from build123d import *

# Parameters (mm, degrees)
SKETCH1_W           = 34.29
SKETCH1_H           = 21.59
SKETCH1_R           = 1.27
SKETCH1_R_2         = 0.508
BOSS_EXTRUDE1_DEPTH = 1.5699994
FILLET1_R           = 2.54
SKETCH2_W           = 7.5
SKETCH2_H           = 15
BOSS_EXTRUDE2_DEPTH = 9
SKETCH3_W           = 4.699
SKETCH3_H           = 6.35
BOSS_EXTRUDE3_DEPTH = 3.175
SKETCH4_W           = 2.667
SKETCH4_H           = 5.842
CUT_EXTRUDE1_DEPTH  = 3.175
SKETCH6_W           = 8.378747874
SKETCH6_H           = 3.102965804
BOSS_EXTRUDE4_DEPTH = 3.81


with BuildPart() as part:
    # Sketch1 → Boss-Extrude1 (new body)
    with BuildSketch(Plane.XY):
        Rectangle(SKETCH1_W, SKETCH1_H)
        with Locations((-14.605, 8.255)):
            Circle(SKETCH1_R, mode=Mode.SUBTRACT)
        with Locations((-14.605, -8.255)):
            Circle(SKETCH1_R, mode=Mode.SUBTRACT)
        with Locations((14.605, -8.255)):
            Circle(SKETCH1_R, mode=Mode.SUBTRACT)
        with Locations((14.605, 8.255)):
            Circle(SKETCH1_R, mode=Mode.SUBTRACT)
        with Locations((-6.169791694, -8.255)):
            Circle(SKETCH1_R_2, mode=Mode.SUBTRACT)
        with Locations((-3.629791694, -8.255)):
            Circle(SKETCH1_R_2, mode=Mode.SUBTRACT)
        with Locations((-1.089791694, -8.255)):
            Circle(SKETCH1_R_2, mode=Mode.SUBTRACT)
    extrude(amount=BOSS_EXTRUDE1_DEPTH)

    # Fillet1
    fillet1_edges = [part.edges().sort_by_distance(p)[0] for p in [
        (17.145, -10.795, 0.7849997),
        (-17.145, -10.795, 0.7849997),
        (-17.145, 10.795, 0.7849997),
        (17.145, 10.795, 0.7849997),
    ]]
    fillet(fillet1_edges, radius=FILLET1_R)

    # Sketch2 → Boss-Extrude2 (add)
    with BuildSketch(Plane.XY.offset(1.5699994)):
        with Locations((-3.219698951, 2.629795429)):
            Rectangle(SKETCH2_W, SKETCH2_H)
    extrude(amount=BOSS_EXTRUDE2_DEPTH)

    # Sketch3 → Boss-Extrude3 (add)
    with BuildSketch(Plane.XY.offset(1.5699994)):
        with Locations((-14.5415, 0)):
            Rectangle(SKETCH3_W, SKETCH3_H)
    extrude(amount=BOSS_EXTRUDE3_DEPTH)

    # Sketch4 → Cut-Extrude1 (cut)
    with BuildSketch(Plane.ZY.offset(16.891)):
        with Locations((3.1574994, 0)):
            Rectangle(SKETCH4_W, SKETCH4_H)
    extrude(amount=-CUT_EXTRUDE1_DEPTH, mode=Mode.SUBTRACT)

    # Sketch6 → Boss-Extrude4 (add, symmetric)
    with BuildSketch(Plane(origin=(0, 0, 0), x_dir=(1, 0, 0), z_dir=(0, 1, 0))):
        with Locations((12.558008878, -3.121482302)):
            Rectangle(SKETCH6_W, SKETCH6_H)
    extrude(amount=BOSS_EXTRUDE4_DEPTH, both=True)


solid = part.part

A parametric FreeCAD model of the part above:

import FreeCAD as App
import Part
import Sketcher
Q = App.Units.Quantity


def edges_at(feature, points):
    """Names of the edges that pass closest to the given points."""
    edges = feature.Shape.Edges
    near = lambda p: min(range(len(edges)), key=lambda i: edges[i].distToShape(Part.Vertex(*p))[0])
    return sorted({f"Edge{near(p) + 1}" for p in points})

doc = App.newDocument("Part")
body = doc.addObject("PartDesign::Body", "Body")

sketch1 = body.newObject("Sketcher::SketchObject", "Sketch")
sketch1.AttachmentSupport = (doc.getObject("XY_Plane"), [""])
sketch1.MapMode = "FlatFace"
sketch1.addGeometry(Part.LineSegment(App.Vector(-17.145, 10.795, 0), App.Vector(-17.145, -10.795, 0)), False)
sketch1.addGeometry(Part.LineSegment(App.Vector(-17.145, -10.795, 0), App.Vector(17.145, -10.795, 0)), False)
sketch1.addGeometry(Part.LineSegment(App.Vector(17.145, -10.795, 0), App.Vector(17.145, 10.795, 0)), False)
sketch1.addGeometry(Part.LineSegment(App.Vector(17.145, 10.795, 0), App.Vector(-17.145, 10.795, 0)), False)
sketch1.addGeometry(Part.Circle(App.Vector(-14.605, -8.255, 0), App.Vector(0, 0, 1), 1.27), False)
sketch1.addGeometry(Part.Circle(App.Vector(-6.169792, -8.255, 0), App.Vector(0, 0, 1), 0.508), False)
sketch1.addGeometry(Part.Circle(App.Vector(-3.629792, -8.255, 0), App.Vector(0, 0, 1), 0.508), False)
sketch1.addGeometry(Part.Circle(App.Vector(-1.089792, -8.255, 0), App.Vector(0, 0, 1), 0.508), False)
sketch1.addGeometry(Part.Circle(App.Vector(14.605, -8.255, 0), App.Vector(0, 0, 1), 1.27), False)
sketch1.addGeometry(Part.Circle(App.Vector(-14.605, 8.255, 0), App.Vector(0, 0, 1), 1.27), False)
sketch1.addGeometry(Part.Circle(App.Vector(14.605, 8.255, 0), App.Vector(0, 0, 1), 1.27), False)
sketch1.addConstraint(Sketcher.Constraint("Coincident", 0, 2, 1, 1))
sketch1.addConstraint(Sketcher.Constraint("Coincident", 1, 2, 2, 1))
sketch1.addConstraint(Sketcher.Constraint("Coincident", 2, 2, 3, 1))
sketch1.addConstraint(Sketcher.Constraint("Coincident", 3, 2, 0, 1))
sketch1.addConstraint(Sketcher.Constraint("Vertical", 0))
sketch1.addConstraint(Sketcher.Constraint("Horizontal", 1))
sketch1.addConstraint(Sketcher.Constraint("Vertical", 2))
sketch1.addConstraint(Sketcher.Constraint("Horizontal", 3))
sketch1.addConstraint(Sketcher.Constraint("Equal", 5, 6))
sketch1.addConstraint(Sketcher.Constraint("Equal", 6, 7))
sketch1.addConstraint(Sketcher.Constraint("Equal", 4, 8))
sketch1.addConstraint(Sketcher.Constraint("Equal", 8, 9))
sketch1.addConstraint(Sketcher.Constraint("Equal", 9, 10))
sketch1.addConstraint(Sketcher.Constraint("Symmetric", 8, 3, 9, 3, -1, 1))
sketch1.addConstraint(Sketcher.Constraint("Symmetric", 4, 3, 10, 3, -1, 1))
sketch1.addConstraint(Sketcher.Constraint("Symmetric", 0, 2, 2, 2, -1, 1))
sketch1.addConstraint(Sketcher.Constraint("Symmetric", 4, 3, 8, 3, -2))
sketch1.addConstraint(Sketcher.Constraint("Horizontal", 4, 3, 5, 3))
sketch1.addConstraint(Sketcher.Constraint("Horizontal", 5, 3, 6, 3))
sketch1.addConstraint(Sketcher.Constraint("Horizontal", 6, 3, 7, 3))
sketch1.addConstraint(Sketcher.Constraint("Diameter", 4, Q("0.1 in")))
sketch1.addConstraint(Sketcher.Constraint("Diameter", 5, Q("0.04 in")))
sketch1.addConstraint(Sketcher.Constraint("DistanceX", 1, 1, 1, 2, Q("1.35 in")))
sketch1.addConstraint(Sketcher.Constraint("DistanceY", 0, 2, 0, 1, Q("0.85 in")))
sketch1.addConstraint(Sketcher.Constraint("DistanceX", 5, 3, 6, 3, Q("0.1 in")))
sketch1.addConstraint(Sketcher.Constraint("DistanceX", 6, 3, 7, 3, Q("0.1 in")))
sketch1.addConstraint(Sketcher.Constraint("DistanceX", 0, 2, 4, 3, Q("0.1 in")))
sketch1.addConstraint(Sketcher.Constraint("DistanceY", 0, 2, 4, 3, Q("0.1 in")))
sketch1.addConstraint(Sketcher.Constraint("DistanceX", 5, 3, -1, 1, 6.169792))
pad1 = body.newObject("PartDesign::Pad", "Pad")
pad1.Profile = sketch1
pad1.Length = 1.569999
doc.recompute()

fillet = body.newObject("PartDesign::Fillet", "Fillet")
fillet.Base = (pad1, edges_at(pad1, [
    (17.145, -10.795, 0.785),
    (-17.145, -10.795, 0.785),
    (-17.145, 10.795, 0.785),
    (17.145, 10.795, 0.785),
]))
fillet.Radius = Q("0.1 in")

sketch2 = body.newObject("Sketcher::SketchObject", "Sketch001")
sketch2.AttachmentSupport = (doc.getObject("XY_Plane"), [""])
sketch2.MapMode = "FlatFace"
sketch2.AttachmentOffset = App.Placement(App.Vector(0, 0, 1.569999), App.Rotation())
sketch2.addGeometry(Part.LineSegment(App.Vector(-6.969699, 10.129795, 0), App.Vector(-6.969699, -4.870205, 0)), False)
sketch2.addGeometry(Part.LineSegment(App.Vector(-6.969699, -4.870205, 0), App.Vector(0.530301, -4.870205, 0)), False)
sketch2.addGeometry(Part.LineSegment(App.Vector(0.530301, -4.870205, 0), App.Vector(0.530301, 10.129795, 0)), False)
sketch2.addGeometry(Part.LineSegment(App.Vector(0.530301, 10.129795, 0), App.Vector(-6.969699, 10.129795, 0)), False)
sketch2.addConstraint(Sketcher.Constraint("Coincident", 0, 2, 1, 1))
sketch2.addConstraint(Sketcher.Constraint("Coincident", 1, 2, 2, 1))
sketch2.addConstraint(Sketcher.Constraint("Coincident", 2, 2, 3, 1))
sketch2.addConstraint(Sketcher.Constraint("Coincident", 3, 2, 0, 1))
sketch2.addConstraint(Sketcher.Constraint("Vertical", 0))
sketch2.addConstraint(Sketcher.Constraint("Horizontal", 1))
sketch2.addConstraint(Sketcher.Constraint("Vertical", 2))
sketch2.addConstraint(Sketcher.Constraint("Horizontal", 3))
sketch2.addConstraint(Sketcher.Constraint("DistanceX", 1, 1, 1, 2, 7.5))
sketch2.addConstraint(Sketcher.Constraint("DistanceY", 0, 2, 0, 1, 15.0))
sketch2.addConstraint(Sketcher.Constraint("DistanceX", 0, 2, -1, 1, 6.969699))
sketch2.addConstraint(Sketcher.Constraint("DistanceY", 0, 2, -1, 1, 4.870205))
pad2 = body.newObject("PartDesign::Pad", "Pad001")
pad2.Profile = sketch2
pad2.Length = 9

sketch3 = body.newObject("Sketcher::SketchObject", "Sketch002")
sketch3.AttachmentSupport = (doc.getObject("XY_Plane"), [""])
sketch3.MapMode = "FlatFace"
sketch3.AttachmentOffset = App.Placement(App.Vector(0, 0, 1.569999), App.Rotation())
sketch3.addGeometry(Part.LineSegment(App.Vector(-16.891, 3.175, 0), App.Vector(-16.891, -3.175, 0)), False)
sketch3.addGeometry(Part.LineSegment(App.Vector(-16.891, -3.175, 0), App.Vector(-12.192, -3.175, 0)), False)
sketch3.addGeometry(Part.LineSegment(App.Vector(-12.192, -3.175, 0), App.Vector(-12.192, 3.175, 0)), False)
sketch3.addGeometry(Part.LineSegment(App.Vector(-12.192, 3.175, 0), App.Vector(-16.891, 3.175, 0)), False)
sketch3.addConstraint(Sketcher.Constraint("Coincident", 0, 2, 1, 1))
sketch3.addConstraint(Sketcher.Constraint("Coincident", 1, 2, 2, 1))
sketch3.addConstraint(Sketcher.Constraint("Coincident", 2, 2, 3, 1))
sketch3.addConstraint(Sketcher.Constraint("Coincident", 3, 2, 0, 1))
sketch3.addConstraint(Sketcher.Constraint("Vertical", 0))
sketch3.addConstraint(Sketcher.Constraint("Horizontal", 1))
sketch3.addConstraint(Sketcher.Constraint("Vertical", 2))
sketch3.addConstraint(Sketcher.Constraint("Horizontal", 3))
sketch3.addConstraint(Sketcher.Constraint("DistanceY", 0, 2, 0, 1, Q("0.25 in")))
sketch3.addConstraint(Sketcher.Constraint("DistanceX", 1, 1, 1, 2, Q("0.185 in")))
sketch3.addConstraint(Sketcher.Constraint("DistanceX", 1, 2, -1, 1, Q("0.48 in")))
sketch3.addConstraint(Sketcher.Constraint("DistanceY", 0, 2, -1, 1, Q("0.125 in")))
pad3 = body.newObject("PartDesign::Pad", "Pad002")
pad3.Profile = sketch3
pad3.Length = Q("0.125 in")

sketch4 = body.newObject("Sketcher::SketchObject", "Sketch003")
sketch4.AttachmentSupport = (doc.getObject("YZ_Plane"), [""])
sketch4.MapMode = "FlatFace"
sketch4.AttachmentOffset = App.Placement(App.Vector(0, 0, -0.665 * 25.4), App.Rotation())
sketch4.addGeometry(Part.LineSegment(App.Vector(2.921, 1.823999, 0), App.Vector(-2.921, 1.823999, 0)), False)
sketch4.addGeometry(Part.LineSegment(App.Vector(-2.921, 1.823999, 0), App.Vector(-2.921, 4.490999, 0)), False)
sketch4.addGeometry(Part.LineSegment(App.Vector(-2.921, 4.490999, 0), App.Vector(2.921, 4.490999, 0)), False)
sketch4.addGeometry(Part.LineSegment(App.Vector(2.921, 4.490999, 0), App.Vector(2.921, 1.823999, 0)), False)
sketch4.addConstraint(Sketcher.Constraint("Coincident", 0, 2, 1, 1))
sketch4.addConstraint(Sketcher.Constraint("Coincident", 1, 2, 2, 1))
sketch4.addConstraint(Sketcher.Constraint("Coincident", 2, 2, 3, 1))
sketch4.addConstraint(Sketcher.Constraint("Coincident", 3, 2, 0, 1))
sketch4.addConstraint(Sketcher.Constraint("Horizontal", 0))
sketch4.addConstraint(Sketcher.Constraint("Vertical", 1))
sketch4.addConstraint(Sketcher.Constraint("Horizontal", 2))
sketch4.addConstraint(Sketcher.Constraint("Vertical", 3))
sketch4.addConstraint(Sketcher.Constraint("DistanceX", 0, 2, 0, 1, Q("0.23 in")))
sketch4.addConstraint(Sketcher.Constraint("DistanceY", 1, 1, 1, 2, Q("0.105 in")))
sketch4.addConstraint(Sketcher.Constraint("DistanceX", 0, 2, -1, 1, Q("0.115 in")))
sketch4.addConstraint(Sketcher.Constraint("DistanceY", -1, 1, 0, 2, 1.823999))
pocket1 = body.newObject("PartDesign::Pocket", "Pocket")
pocket1.Profile = sketch4
pocket1.Length = Q("0.125 in")
pocket1.Reversed = True

sketch5 = body.newObject("Sketcher::SketchObject", "Sketch004")
sketch5.AttachmentSupport = (doc.getObject("XZ_Plane"), [""])
sketch5.MapMode = "FlatFace"
sketch5.addGeometry(Part.LineSegment(App.Vector(8.368635, 1.569999, 0), App.Vector(8.368635, 4.672965, 0)), False)
sketch5.addGeometry(Part.LineSegment(App.Vector(8.368635, 4.672965, 0), App.Vector(16.747383, 4.672965, 0)), False)
sketch5.addGeometry(Part.LineSegment(App.Vector(16.747383, 4.672965, 0), App.Vector(16.747383, 1.569999, 0)), False)
sketch5.addGeometry(Part.LineSegment(App.Vector(16.747383, 1.569999, 0), App.Vector(8.368635, 1.569999, 0)), False)
sketch5.addConstraint(Sketcher.Constraint("Coincident", 0, 2, 1, 1))
sketch5.addConstraint(Sketcher.Constraint("Coincident", 1, 2, 2, 1))
sketch5.addConstraint(Sketcher.Constraint("Coincident", 2, 2, 3, 1))
sketch5.addConstraint(Sketcher.Constraint("Coincident", 3, 2, 0, 1))
sketch5.addConstraint(Sketcher.Constraint("Vertical", 0))
sketch5.addConstraint(Sketcher.Constraint("Horizontal", 1))
sketch5.addConstraint(Sketcher.Constraint("Vertical", 2))
sketch5.addConstraint(Sketcher.Constraint("Horizontal", 3))
sketch5.addConstraint(Sketcher.Constraint("DistanceY", -1, 1, 2, 2, 1.569999))
sketch5.addConstraint(Sketcher.Constraint("DistanceX", 1, 1, 1, 2, 8.378748))
sketch5.addConstraint(Sketcher.Constraint("DistanceY", 0, 1, 0, 2, 3.102966))
sketch5.addConstraint(Sketcher.Constraint("DistanceX", -1, 1, 0, 2, 8.368635))
pad4 = body.newObject("PartDesign::Pad", "Pad003")
pad4.Profile = sketch5
pad4.Length = Q("0.3 in")
pad4.Midplane = True

doc.recompute()
